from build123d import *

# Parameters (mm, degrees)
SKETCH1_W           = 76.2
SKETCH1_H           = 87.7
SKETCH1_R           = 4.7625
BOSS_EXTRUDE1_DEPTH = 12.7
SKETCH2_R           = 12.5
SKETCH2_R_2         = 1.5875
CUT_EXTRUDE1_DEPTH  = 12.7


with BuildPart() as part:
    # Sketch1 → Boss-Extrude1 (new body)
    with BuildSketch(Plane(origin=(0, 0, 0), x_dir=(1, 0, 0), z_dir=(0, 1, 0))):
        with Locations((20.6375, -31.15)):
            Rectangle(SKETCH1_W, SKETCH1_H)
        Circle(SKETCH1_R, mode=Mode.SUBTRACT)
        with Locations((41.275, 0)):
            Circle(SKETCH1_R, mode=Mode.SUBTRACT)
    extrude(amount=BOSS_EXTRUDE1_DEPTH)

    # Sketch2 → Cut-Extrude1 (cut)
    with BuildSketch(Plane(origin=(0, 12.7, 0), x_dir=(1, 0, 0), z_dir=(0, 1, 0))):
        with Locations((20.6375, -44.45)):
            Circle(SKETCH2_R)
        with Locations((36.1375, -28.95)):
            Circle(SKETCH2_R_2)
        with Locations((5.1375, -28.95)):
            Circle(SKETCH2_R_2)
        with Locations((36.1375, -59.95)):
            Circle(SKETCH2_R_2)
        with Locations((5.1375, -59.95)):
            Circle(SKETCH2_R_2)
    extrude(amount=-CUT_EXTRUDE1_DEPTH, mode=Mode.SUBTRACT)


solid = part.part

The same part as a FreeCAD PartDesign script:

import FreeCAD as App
import Part
import Sketcher
Q = App.Units.Quantity


def add_polygon(sketch, points):
    """Adds a closed chain of lines whose ends are joined by coincident constraints."""
    first, n = sketch.GeometryCount, len(points)
    for a, b in zip(points, points[1:] + points[:1]):
        sketch.addGeometry(Part.LineSegment(App.Vector(*a, 0), App.Vector(*b, 0)), False)
    for i in range(n):
        sketch.addConstraint(Sketcher.Constraint("Coincident", first + i, 2, first + (i + 1) % n, 1))

doc = App.newDocument("Part")
body = doc.addObject("PartDesign::Body", "Body")

# Sketch on XZ plane
sketch1 = body.newObject("Sketcher::SketchObject", "Sketch")
sketch1.AttachmentSupport = (doc.getObject("XZ_Plane"), [""])
sketch1.MapMode = "FlatFace"
add_polygon(sketch1, [(-17.5, -12.7), (-17.5, 75), (58.7, 75), (58.7, -12.7)])  # lines 0-3
sketch1.addGeometry(Part.Circle(App.Vector(0, 0, 0), App.Vector(0, 0, 1), 4.8), False)  # 4
sketch1.addGeometry(Part.Circle(App.Vector(41.3, 0, 0), App.Vector(0, 0, 1), 4.8), False)  # 5
sketch1.addConstraint([
    Sketcher.Constraint("Vertical", 0),
    Sketcher.Constraint("Horizontal", 1),
    Sketcher.Constraint("Vertical", 2),
    Sketcher.Constraint("Horizontal", 3),
    Sketcher.Constraint("Coincident", 4, 3, -1, 1),
    Sketcher.Constraint("Equal", 4, 5),
    Sketcher.Constraint("PointOnObject", 5, 3, -1),
    Sketcher.Constraint("DistanceX", 1, 1, 1, 2, Q("3 in")),
    Sketcher.Constraint("Diameter", 4, Q("0.375 in")),
    Sketcher.Constraint("DistanceY", 2, 2, -1, 1, Q("0.5 in")),
    Sketcher.Constraint("DistanceX", -1, 1, 5, 3, Q("1.625 in")),
    Sketcher.Constraint("DistanceX", 0, 2, -1, 1, Q("0.6875 in")),
    Sketcher.Constraint("DistanceY", 0, 1, 0, 2, 87.7),
])
pad1 = body.newObject("PartDesign::Pad", "Pad")
pad1.Profile = sketch1
pad1.Length = Q("0.5 in")
pad1.Reversed = True

# Sketch on XZ plane
sketch2 = body.newObject("Sketcher::SketchObject", "Sketch001")
sketch2.AttachmentSupport = (doc.getObject("XZ_Plane"), [""])
sketch2.MapMode = "FlatFace"
sketch2.AttachmentOffset = App.Placement(App.Vector(0, 0, -0.5 * 25.4), App.Rotation())
sketch2.addGeometry([
    Part.Circle(App.Vector(20.6, 44.5, 0), App.Vector(0, 0, 1), 12.5),  # 0
    Part.Circle(App.Vector(36.1, 28.9, 0), App.Vector(0, 0, 1), 1.6),  # 1
    Part.Circle(App.Vector(5.1, 28.9, 0), App.Vector(0, 0, 1), 1.6),  # 2
    Part.Circle(App.Vector(36.1, 60, 0), App.Vector(0, 0, 1), 1.6),  # 3
    Part.Circle(App.Vector(5.1, 60, 0), App.Vector(0, 0, 1), 1.6),  # 4
], False)
sketch2.addConstraint([
    Sketcher.Constraint("Equal", 1, 2),
    Sketcher.Constraint("Equal", 2, 3),
    Sketcher.Constraint("Equal", 3, 4),
    Sketcher.Constraint("Horizontal", 1, 3, 2, 3),
    Sketcher.Constraint("Horizontal", 3, 3, 4, 3),
    Sketcher.Constraint("Vertical", 1, 3, 3, 3),
    Sketcher.Constraint("Vertical", 2, 3, 4, 3),
    Sketcher.Constraint("Diameter", 1, Q("0.125 in")),
    Sketcher.Constraint("Diameter", 0, 25.0),
    Sketcher.Constraint("DistanceY", -1, 1, 0, 3, Q("1.75 in")),
    Sketcher.Constraint("DistanceX", -1, 1, 0, 3, Q("0.8125 in")),
    Sketcher.Constraint("DistanceX", -1, 1, 1, 3, 36.1375),
    Sketcher.Constraint("DistanceY", -1, 1, 1, 3, 28.95),
    Sketcher.Constraint("DistanceX", -1, 1, 2, 3, 5.1375),
    Sketcher.Constraint("DistanceY", -1, 1, 3, 3, 59.95),
])
pocket1 = body.newObject("PartDesign::Pocket", "Pocket")
pocket1.Profile = sketch2
pocket1.Length = Q("0.5 in")
pocket1.Reversed = True

doc.recompute()
